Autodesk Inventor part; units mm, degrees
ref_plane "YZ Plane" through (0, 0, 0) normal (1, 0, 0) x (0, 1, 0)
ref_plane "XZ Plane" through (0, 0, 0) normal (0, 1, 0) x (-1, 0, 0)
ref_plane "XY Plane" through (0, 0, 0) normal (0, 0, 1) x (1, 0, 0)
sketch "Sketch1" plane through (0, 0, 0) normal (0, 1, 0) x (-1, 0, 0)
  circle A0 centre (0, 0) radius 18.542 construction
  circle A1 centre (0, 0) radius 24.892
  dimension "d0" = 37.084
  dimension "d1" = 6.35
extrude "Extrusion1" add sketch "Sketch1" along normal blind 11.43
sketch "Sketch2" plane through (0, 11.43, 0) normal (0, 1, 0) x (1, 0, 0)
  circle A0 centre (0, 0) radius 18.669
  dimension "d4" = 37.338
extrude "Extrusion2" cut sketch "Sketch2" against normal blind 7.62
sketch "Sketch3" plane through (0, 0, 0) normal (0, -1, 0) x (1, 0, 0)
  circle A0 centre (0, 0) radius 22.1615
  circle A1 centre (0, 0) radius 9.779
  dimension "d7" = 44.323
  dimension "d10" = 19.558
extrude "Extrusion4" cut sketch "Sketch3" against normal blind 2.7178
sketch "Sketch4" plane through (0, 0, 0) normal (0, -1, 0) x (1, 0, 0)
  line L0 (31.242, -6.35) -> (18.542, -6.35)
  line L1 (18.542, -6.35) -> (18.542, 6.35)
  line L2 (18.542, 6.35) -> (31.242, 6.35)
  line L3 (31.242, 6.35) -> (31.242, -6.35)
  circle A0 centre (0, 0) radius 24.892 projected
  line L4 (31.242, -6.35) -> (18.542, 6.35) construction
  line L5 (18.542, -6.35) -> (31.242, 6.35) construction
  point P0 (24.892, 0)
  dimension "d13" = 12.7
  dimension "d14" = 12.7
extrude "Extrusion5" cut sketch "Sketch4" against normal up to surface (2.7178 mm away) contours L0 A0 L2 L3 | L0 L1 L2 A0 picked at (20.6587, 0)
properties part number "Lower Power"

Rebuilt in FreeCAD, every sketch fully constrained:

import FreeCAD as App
import Part
import Sketcher
from FreeCAD import Vector
Q = App.Units.Quantity

doc = App.newDocument("Part")
body = doc.addObject("PartDesign::Body", "Body")

# Sketch on XZ plane
sketch1 = body.newObject("Sketcher::SketchObject", "Sketch")
sketch1.AttachmentSupport = (doc.getObject("XZ_Plane"), [""])
sketch1.MapMode = "FlatFace"
sketch1.addGeometry(Part.Circle(Vector(0, 0, 0), Vector(0, 0, 1), 25), False)
sketch1.addConstraint([
    Sketcher.Constraint("Coincident", 0, 3, -1, 1),
    Sketcher.Constraint("Diameter", 0, Q("1.96 in")),
])
pad1 = body.newObject("PartDesign::Pad", "Pad")
pad1.Profile = sketch1
pad1.Length = Q("0.45 in")
pad1.Reversed = True

# Sketch on XZ plane
sketch2 = body.newObject("Sketcher::SketchObject", "Sketch001")
sketch2.AttachmentSupport = (doc.getObject("XZ_Plane"), [""])
sketch2.MapMode = "FlatFace"
sketch2.AttachmentOffset = App.Placement(Vector(0, 0, -0.45 * 25.4), App.Rotation())
sketch2.addGeometry(Part.Circle(Vector(0, 0, 0), Vector(0, 0, 1), 19), False)
sketch2.addConstraint([
    Sketcher.Constraint("Coincident", 0, 3, -1, 1),
    Sketcher.Constraint("Diameter", 0, Q("1.47 in")),
])
pocket1 = body.newObject("PartDesign::Pocket", "Pocket")
pocket1.Profile = sketch2
pocket1.Length = Q("0.3 in")
pocket1.Reversed = True

# Sketch on XZ plane
sketch3 = body.newObject("Sketcher::SketchObject", "Sketch002")
sketch3.AttachmentSupport = (doc.getObject("XZ_Plane"), [""])
sketch3.MapMode = "FlatFace"
sketch3.addGeometry([
    Part.Circle(Vector(0, 0, 0), Vector(0, 0, 1), 22),
    Part.Circle(Vector(0, 0, 0), Vector(0, 0, 1), 10),
], False)
sketch3.addConstraint([
    Sketcher.Constraint("Coincident", 0, 3, -1, 1),
    Sketcher.Constraint("Coincident", 1, 3, -1, 1),
    Sketcher.Constraint("Diameter", 1, Q("0.77 in")),
    Sketcher.Constraint("Diameter", 0, Q("1.745 in")),
])
pocket2 = body.newObject("PartDesign::Pocket", "Pocket001")
pocket2.Profile = sketch3
pocket2.Length = Q("0.107 in")

# Sketch on XZ plane
sketch4 = body.newObject("Sketcher::SketchObject", "Sketch003")
sketch4.AttachmentSupport = (doc.getObject("XZ_Plane"), [""])
sketch4.MapMode = "FlatFace"
sketch4.addGeometry([
    Part.LineSegment(Vector(31, -6, 0), Vector(31, 6, 0)),
    Part.LineSegment(Vector(31, 6, 0), Vector(19, 6, 0)),
    Part.LineSegment(Vector(19, 6, 0), Vector(19, -6, 0)),
    Part.LineSegment(Vector(19, -6, 0), Vector(31, -6, 0)),
], False)
sketch4.addConstraint([
    Sketcher.Constraint("Coincident", 0, 2, 1, 1),
    Sketcher.Constraint("Coincident", 1, 2, 2, 1),
    Sketcher.Constraint("Coincident", 2, 2, 3, 1),
    Sketcher.Constraint("Coincident", 3, 2, 0, 1),
    Sketcher.Constraint("Vertical", 0),
    Sketcher.Constraint("Horizontal", 1),
    Sketcher.Constraint("Vertical", 2),
    Sketcher.Constraint("Horizontal", 3),
    Sketcher.Constraint("Equal", 3, 0),
    Sketcher.Constraint("DistanceX", 1, 2, 1, 1, Q("0.5 in")),
    Sketcher.Constraint("DistanceX", -1, 1, 0, 2, Q("1.23 in")),
    Sketcher.Constraint("DistanceY", -1, 1, 0, 2, Q("0.25 in")),
])
pocket3 = body.newObject("PartDesign::Pocket", "Pocket002")
pocket3.Profile = sketch4
pocket3.Length = Q("0.107 in")

doc.recompute()
